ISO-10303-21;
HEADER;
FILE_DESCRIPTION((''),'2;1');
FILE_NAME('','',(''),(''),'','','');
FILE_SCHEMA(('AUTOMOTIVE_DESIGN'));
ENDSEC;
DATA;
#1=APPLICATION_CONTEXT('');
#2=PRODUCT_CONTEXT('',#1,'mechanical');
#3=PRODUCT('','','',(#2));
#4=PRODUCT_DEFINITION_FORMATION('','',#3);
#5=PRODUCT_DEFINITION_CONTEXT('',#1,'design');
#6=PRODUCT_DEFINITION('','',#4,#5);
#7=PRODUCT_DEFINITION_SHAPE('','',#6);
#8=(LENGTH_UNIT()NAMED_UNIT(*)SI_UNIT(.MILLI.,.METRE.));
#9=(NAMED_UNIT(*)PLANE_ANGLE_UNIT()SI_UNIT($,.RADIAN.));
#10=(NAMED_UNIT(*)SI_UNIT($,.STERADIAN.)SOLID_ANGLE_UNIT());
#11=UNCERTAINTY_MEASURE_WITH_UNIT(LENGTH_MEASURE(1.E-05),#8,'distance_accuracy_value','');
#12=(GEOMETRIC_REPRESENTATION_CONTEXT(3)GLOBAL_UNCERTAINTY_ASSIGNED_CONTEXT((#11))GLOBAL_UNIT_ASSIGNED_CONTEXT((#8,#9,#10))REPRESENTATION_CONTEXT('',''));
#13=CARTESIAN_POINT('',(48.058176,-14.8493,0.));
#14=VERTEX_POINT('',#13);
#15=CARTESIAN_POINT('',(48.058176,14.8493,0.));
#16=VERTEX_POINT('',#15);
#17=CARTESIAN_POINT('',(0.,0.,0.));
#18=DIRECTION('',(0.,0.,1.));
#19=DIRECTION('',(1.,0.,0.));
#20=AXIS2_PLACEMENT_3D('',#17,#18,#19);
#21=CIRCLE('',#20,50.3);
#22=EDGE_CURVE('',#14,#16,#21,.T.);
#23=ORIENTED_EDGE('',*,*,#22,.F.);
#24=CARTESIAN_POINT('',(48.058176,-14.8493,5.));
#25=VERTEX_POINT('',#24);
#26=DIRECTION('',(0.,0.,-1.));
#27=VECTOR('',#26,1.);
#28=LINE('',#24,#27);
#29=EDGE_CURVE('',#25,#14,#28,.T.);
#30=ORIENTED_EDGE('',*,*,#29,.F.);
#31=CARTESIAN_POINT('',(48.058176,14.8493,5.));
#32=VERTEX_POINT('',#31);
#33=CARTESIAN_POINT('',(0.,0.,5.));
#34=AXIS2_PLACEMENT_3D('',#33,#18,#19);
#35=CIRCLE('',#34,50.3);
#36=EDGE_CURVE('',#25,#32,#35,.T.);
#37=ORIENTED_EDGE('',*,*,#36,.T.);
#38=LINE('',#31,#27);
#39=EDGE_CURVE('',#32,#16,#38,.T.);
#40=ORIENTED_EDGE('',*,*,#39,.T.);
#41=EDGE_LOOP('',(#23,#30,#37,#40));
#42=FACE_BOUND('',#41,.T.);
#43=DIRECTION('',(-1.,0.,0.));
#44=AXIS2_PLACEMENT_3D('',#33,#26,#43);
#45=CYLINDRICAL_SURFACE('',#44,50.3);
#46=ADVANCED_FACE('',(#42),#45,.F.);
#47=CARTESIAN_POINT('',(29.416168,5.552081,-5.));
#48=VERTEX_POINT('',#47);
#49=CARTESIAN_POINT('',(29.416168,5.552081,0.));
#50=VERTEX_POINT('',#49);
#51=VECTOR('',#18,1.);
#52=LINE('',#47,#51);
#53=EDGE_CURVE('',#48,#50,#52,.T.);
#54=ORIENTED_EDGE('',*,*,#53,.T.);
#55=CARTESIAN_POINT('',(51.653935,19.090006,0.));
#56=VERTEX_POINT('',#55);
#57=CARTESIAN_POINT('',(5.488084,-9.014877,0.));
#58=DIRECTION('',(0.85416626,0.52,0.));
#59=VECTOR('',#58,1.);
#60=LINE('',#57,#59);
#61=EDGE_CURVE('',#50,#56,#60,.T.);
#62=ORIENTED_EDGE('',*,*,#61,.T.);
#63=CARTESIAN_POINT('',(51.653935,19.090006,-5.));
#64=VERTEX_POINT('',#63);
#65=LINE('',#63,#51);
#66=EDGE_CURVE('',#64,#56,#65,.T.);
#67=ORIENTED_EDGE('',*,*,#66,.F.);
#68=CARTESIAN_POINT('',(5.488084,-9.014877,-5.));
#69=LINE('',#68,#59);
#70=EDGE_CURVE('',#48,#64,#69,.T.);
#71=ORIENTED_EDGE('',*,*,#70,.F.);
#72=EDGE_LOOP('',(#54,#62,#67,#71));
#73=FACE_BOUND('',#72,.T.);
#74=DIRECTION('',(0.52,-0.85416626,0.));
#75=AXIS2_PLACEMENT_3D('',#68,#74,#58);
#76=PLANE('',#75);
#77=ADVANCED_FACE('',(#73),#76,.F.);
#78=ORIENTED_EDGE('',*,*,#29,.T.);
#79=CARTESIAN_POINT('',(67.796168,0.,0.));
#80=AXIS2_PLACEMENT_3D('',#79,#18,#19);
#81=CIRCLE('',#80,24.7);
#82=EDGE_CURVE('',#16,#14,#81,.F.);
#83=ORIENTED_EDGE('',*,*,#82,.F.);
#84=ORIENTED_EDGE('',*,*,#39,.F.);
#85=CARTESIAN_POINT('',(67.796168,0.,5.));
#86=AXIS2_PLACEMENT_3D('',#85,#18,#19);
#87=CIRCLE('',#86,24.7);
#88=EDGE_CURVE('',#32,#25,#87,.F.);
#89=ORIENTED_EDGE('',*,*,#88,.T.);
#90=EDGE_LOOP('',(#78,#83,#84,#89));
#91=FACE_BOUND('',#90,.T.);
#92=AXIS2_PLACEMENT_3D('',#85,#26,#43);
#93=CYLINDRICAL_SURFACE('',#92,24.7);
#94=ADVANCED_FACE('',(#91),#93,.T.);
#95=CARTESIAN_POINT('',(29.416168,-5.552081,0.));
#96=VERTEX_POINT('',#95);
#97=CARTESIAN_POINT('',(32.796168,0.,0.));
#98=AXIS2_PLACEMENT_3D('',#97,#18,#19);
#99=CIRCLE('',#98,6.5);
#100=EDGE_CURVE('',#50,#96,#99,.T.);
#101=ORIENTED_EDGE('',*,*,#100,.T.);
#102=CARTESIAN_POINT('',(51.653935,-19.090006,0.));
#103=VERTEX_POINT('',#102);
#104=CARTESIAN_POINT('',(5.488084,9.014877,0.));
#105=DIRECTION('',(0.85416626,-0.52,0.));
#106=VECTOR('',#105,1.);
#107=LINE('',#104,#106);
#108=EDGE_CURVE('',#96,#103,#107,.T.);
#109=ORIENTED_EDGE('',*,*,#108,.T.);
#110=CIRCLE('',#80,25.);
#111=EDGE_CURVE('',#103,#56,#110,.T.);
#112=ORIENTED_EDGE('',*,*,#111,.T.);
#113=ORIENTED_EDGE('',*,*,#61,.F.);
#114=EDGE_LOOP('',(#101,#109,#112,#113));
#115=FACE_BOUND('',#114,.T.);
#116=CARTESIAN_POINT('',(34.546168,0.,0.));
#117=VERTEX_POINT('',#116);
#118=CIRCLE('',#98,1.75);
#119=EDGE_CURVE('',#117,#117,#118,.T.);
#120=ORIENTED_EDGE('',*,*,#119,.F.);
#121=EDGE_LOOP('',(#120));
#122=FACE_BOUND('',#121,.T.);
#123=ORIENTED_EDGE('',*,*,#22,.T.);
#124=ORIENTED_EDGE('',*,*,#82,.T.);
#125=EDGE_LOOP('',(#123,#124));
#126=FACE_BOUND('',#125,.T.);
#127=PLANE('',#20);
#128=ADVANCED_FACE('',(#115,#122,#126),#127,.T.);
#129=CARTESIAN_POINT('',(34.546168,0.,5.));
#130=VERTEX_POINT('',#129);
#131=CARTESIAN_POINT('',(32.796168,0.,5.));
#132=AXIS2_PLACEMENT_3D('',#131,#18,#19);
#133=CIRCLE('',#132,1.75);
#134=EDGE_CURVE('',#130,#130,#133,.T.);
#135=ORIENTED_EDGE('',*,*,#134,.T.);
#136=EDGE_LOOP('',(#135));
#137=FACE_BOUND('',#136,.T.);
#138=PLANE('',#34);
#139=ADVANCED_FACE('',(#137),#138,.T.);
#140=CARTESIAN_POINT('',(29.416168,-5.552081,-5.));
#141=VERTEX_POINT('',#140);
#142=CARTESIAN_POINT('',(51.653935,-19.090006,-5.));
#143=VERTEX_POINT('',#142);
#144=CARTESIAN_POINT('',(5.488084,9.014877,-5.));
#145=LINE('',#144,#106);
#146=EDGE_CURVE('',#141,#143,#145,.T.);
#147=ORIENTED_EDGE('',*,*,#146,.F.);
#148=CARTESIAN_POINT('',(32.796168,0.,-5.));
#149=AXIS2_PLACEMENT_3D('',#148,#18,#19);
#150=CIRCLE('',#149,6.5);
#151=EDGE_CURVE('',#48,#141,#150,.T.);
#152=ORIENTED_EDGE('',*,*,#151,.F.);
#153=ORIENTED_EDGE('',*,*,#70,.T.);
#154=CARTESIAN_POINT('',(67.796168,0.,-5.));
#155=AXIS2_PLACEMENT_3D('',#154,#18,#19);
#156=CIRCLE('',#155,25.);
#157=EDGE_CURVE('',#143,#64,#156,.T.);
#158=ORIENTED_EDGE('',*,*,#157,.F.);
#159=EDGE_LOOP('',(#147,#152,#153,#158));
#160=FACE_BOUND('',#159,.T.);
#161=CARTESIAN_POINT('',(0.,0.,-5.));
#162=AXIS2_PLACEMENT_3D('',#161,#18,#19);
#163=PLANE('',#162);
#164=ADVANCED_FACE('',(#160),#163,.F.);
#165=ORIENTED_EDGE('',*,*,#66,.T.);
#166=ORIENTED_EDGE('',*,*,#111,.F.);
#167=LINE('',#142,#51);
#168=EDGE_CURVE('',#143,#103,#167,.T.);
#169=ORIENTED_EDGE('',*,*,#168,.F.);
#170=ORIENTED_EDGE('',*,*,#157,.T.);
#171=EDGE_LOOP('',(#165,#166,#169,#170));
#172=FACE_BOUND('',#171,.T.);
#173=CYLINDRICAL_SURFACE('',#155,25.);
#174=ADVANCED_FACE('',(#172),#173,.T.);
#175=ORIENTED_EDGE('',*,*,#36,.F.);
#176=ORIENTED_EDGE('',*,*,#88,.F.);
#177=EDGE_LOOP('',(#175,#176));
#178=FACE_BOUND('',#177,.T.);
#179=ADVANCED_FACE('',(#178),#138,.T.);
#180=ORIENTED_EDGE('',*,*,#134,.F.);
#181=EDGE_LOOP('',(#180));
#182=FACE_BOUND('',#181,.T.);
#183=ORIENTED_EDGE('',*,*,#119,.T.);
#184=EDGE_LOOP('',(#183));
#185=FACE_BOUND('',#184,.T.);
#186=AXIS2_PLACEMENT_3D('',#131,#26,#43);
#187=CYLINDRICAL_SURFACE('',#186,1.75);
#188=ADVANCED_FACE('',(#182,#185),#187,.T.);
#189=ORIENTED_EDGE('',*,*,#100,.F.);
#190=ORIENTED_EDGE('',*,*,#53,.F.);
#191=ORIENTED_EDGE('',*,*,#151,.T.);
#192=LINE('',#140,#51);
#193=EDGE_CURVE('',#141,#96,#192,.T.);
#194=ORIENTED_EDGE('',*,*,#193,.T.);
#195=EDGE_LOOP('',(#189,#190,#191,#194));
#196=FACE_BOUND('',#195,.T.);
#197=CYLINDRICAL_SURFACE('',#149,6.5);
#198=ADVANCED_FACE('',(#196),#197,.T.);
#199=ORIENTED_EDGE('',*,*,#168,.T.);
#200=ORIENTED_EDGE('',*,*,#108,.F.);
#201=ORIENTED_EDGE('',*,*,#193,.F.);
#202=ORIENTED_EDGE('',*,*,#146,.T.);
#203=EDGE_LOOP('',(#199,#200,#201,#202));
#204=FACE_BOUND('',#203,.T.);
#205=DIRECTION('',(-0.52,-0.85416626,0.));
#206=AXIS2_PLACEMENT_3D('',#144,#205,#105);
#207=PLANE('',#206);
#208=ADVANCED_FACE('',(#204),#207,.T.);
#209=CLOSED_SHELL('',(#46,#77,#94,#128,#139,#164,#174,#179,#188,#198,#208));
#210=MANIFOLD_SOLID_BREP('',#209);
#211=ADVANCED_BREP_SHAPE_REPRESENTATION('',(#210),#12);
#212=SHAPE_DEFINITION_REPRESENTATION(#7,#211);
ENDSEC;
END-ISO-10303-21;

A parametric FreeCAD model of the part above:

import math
import FreeCAD as App
import Part
import Sketcher
from FreeCAD import Vector
Q = App.Units.Quantity

doc = App.newDocument("Part")
body = doc.addObject("PartDesign::Body", "Body")

sketch1 = body.newObject("Sketcher::SketchObject", "Sketch")
sketch1.AttachmentSupport = (doc.getObject("XY_Plane"), [""])
sketch1.MapMode = "FlatFace"
sketch1.addGeometry([
    Part.ArcOfCircle(Part.Circle(Vector(33, 0, 0), Vector(0, 0, 1), 6), math.radians(121), math.radians(239)),
    Part.LineSegment(Vector(29, -6, 0), Vector(52, -19, 0)),
    Part.ArcOfCircle(Part.Circle(Vector(68, 0, 0), Vector(0, 0, 1), 25), math.radians(-130), math.radians(130)),
    Part.LineSegment(Vector(52, 19, 0), Vector(29, 6, 0)),
], False)
sketch1.addConstraint([
    Sketcher.Constraint("Tangent", 0, 2, 1, 1),
    Sketcher.Constraint("Coincident", 1, 2, 2, 1),
    Sketcher.Constraint("Coincident", 2, 2, 3, 1),
    Sketcher.Constraint("Tangent", 3, 2, 0, 1),
    Sketcher.Constraint("Symmetric", 1, 2, 2, 2, -1),
    Sketcher.Constraint("PointOnObject", 0, 3, -1),
    Sketcher.Constraint("Radius", 2, Q("25 mm")),
    Sketcher.Constraint("Radius", 0, Q("6.5 mm")),
    Sketcher.Constraint("DistanceX", 0, 3, 2, 3, Q("35 mm")),
    Sketcher.Constraint("DistanceX", 0, 2, 0, 3, Q("3.38 mm")),
    Sketcher.Constraint("DistanceX", -1, 1, 0, 3, Q("32.796168 mm")),
])
pad1 = body.newObject("PartDesign::Pad", "Pad")
pad1.Profile = sketch1
pad1.Length = 5
pad1.Reversed = True

sketch2 = body.newObject("Sketcher::SketchObject", "Sketch001")
sketch2.AttachmentSupport = (doc.getObject("XY_Plane"), [""])
sketch2.MapMode = "FlatFace"
sketch2.addGeometry([
    Part.Circle(Vector(32.8, 0, 0), Vector(0, 0, 1), 1.8),
    Part.ArcOfCircle(Part.Circle(Vector(67.8, 0, 0), Vector(0, 0, 1), 24.7), math.radians(-143), math.radians(143)),
    Part.ArcOfCircle(Part.Circle(Vector(0, 0, 0), Vector(0, 0, 1), 50.3), math.radians(-17), math.radians(17)),
], False)
sketch2.addConstraint([
    Sketcher.Constraint("Coincident", 1, 1, 2, 1),
    Sketcher.Constraint("Coincident", 2, 2, 1, 2),
    Sketcher.Constraint("Coincident", 2, 3, -1, 1),
    Sketcher.Constraint("PointOnObject", 0, 3, -1),
    Sketcher.Constraint("PointOnObject", 1, 3, -1),
    Sketcher.Constraint("Diameter", 0, Q("3.5 mm")),
    Sketcher.Constraint("Radius", 1, Q("24.7 mm")),
    Sketcher.Constraint("Radius", 2, Q("50.3 mm")),
    Sketcher.Constraint("DistanceX", 0, 3, 1, 3, Q("35 mm")),
    Sketcher.Constraint("DistanceY", 1, 1, -1, 1, Q("14.8493 mm")),
])
pad2 = body.newObject("PartDesign::Pad", "Pad001")
pad2.Profile = sketch2
pad2.Length = 5

doc.recompute()
